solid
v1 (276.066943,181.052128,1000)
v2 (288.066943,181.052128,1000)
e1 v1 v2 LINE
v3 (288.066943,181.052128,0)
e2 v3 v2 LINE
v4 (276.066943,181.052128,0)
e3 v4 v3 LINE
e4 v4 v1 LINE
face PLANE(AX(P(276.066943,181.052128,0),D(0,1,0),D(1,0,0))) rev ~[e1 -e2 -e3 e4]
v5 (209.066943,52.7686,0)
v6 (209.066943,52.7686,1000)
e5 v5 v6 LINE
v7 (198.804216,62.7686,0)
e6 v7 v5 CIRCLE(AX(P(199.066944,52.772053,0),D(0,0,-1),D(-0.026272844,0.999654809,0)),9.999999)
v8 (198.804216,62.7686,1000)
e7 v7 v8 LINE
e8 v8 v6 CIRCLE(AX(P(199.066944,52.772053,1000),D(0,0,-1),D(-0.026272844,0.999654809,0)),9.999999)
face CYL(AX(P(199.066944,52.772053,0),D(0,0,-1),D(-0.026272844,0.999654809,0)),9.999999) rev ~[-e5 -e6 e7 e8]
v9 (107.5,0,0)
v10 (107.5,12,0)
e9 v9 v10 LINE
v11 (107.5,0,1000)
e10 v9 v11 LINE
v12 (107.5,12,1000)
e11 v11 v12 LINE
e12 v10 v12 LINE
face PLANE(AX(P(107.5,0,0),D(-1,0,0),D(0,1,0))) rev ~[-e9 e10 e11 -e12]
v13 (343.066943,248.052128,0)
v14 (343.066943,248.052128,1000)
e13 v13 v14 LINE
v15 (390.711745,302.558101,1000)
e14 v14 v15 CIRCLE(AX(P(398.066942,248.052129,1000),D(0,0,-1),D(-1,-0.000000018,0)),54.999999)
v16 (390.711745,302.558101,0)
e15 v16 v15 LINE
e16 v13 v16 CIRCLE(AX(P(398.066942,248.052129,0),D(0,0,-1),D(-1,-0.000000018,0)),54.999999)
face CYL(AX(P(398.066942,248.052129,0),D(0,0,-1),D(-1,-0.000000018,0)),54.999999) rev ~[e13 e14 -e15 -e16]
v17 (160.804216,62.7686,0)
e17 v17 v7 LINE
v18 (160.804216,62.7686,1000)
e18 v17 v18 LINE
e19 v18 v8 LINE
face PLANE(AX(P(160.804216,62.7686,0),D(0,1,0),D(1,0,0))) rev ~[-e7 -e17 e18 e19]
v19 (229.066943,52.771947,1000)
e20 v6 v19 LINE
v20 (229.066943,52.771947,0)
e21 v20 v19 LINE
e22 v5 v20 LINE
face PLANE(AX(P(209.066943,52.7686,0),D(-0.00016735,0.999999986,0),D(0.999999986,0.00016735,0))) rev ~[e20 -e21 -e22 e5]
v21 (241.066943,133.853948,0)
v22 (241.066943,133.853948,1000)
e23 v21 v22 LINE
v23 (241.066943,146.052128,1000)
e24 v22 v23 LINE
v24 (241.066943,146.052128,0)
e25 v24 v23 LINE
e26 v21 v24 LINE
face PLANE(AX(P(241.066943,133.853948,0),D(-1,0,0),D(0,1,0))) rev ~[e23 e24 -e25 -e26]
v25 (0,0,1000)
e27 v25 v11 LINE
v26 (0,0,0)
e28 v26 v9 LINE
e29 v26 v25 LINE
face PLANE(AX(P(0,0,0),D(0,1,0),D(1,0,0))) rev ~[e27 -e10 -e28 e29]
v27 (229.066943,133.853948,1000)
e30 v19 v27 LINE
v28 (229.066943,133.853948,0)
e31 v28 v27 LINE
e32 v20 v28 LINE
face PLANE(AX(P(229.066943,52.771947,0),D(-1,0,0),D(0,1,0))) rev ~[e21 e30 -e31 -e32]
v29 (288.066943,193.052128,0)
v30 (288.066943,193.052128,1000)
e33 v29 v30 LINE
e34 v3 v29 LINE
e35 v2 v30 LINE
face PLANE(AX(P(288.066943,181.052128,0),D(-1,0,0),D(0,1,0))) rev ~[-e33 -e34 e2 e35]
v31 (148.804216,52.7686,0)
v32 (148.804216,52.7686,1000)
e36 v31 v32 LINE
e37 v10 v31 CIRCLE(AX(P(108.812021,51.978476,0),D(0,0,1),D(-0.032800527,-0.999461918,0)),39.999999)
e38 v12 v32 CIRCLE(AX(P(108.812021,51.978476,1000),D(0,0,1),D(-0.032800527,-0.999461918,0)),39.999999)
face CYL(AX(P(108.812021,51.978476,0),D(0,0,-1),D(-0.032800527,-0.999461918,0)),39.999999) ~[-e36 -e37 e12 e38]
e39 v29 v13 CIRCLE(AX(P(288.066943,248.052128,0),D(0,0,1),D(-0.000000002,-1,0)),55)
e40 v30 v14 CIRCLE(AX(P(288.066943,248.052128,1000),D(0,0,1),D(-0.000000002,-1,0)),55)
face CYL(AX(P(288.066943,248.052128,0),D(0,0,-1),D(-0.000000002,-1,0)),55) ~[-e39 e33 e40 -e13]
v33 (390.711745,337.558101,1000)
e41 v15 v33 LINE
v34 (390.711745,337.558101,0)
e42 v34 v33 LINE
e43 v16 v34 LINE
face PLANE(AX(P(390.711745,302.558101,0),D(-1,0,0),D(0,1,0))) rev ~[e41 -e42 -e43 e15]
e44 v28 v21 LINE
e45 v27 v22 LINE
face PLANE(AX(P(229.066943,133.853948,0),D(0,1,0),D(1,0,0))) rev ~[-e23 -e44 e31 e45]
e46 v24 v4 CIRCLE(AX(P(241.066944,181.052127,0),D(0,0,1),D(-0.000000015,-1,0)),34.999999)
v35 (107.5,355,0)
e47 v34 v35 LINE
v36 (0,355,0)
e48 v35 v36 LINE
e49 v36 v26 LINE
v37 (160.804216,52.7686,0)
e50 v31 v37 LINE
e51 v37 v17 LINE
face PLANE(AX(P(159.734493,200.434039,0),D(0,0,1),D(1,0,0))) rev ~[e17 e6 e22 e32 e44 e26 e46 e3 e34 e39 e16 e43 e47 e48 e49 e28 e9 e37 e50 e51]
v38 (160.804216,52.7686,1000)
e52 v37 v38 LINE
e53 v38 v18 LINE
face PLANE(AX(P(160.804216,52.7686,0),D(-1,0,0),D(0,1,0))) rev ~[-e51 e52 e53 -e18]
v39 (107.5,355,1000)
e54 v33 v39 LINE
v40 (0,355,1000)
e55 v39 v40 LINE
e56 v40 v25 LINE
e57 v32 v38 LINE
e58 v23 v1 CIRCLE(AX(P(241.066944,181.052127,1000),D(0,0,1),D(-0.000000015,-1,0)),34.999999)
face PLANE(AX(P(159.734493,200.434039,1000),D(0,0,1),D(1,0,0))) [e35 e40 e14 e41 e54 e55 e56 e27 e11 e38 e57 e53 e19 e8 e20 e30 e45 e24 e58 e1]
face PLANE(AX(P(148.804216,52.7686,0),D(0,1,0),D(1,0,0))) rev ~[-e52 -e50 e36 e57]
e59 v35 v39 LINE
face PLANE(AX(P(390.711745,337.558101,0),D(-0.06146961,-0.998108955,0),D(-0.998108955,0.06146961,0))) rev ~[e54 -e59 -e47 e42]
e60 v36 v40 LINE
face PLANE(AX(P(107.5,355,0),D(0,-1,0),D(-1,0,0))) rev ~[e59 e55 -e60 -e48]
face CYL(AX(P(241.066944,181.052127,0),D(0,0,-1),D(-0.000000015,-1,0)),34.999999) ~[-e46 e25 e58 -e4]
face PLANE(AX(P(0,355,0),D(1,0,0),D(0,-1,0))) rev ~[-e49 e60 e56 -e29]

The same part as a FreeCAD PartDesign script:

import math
import FreeCAD as App
import Part
import Sketcher
Q = App.Units.Quantity

doc = App.newDocument("Part")
body = doc.addObject("PartDesign::Body", "Body")

sketch1 = doc.addObject("Sketcher::SketchObject", "Sketch")
body.addObject(sketch1)
sketch1.AttachmentSupport = (doc.XY_Plane, [""])
sketch1.MapMode = "FlatFace"
sketch1.addGeometry(Part.LineSegment(App.Vector(0, 355, 0), App.Vector(0, 0, 0)), False)
sketch1.addGeometry(Part.LineSegment(App.Vector(0, 0, 0), App.Vector(108, 0, 0)), False)
sketch1.addGeometry(Part.LineSegment(App.Vector(108, 0, 0), App.Vector(108, 12, 0)), False)
sketch1.addGeometry(Part.ArcOfCircle(Part.Circle(App.Vector(109, 52, 0), App.Vector(0, 0, 1), 40), math.radians(-92), math.radians(1)), False)
sketch1.addGeometry(Part.LineSegment(App.Vector(149, 53, 0), App.Vector(161, 53, 0)), False)
sketch1.addGeometry(Part.LineSegment(App.Vector(161, 53, 0), App.Vector(161, 63, 0)), False)
sketch1.addGeometry(Part.LineSegment(App.Vector(161, 63, 0), App.Vector(199, 63, 0)), False)
sketch1.addGeometry(Part.ArcOfCircle(Part.Circle(App.Vector(199, 53, 0), App.Vector(0, 0, 1), 10), math.radians(0), math.radians(92)), False)
sketch1.addGeometry(Part.LineSegment(App.Vector(209, 53, 0), App.Vector(229, 53, 0)), False)
sketch1.addGeometry(Part.LineSegment(App.Vector(229, 53, 0), App.Vector(229, 134, 0)), False)
sketch1.addGeometry(Part.LineSegment(App.Vector(229, 134, 0), App.Vector(241, 134, 0)), False)
sketch1.addGeometry(Part.LineSegment(App.Vector(241, 134, 0), App.Vector(241, 146, 0)), False)
sketch1.addGeometry(Part.ArcOfCircle(Part.Circle(App.Vector(241, 181, 0), App.Vector(0, 0, 1), 35), math.radians(-90), math.radians(0)), False)
sketch1.addGeometry(Part.LineSegment(App.Vector(276, 181, 0), App.Vector(288, 181, 0)), False)
sketch1.addGeometry(Part.LineSegment(App.Vector(288, 181, 0), App.Vector(288, 193, 0)), False)
sketch1.addGeometry(Part.ArcOfCircle(Part.Circle(App.Vector(288, 248, 0), App.Vector(0, 0, 1), 55), math.radians(-90), math.radians(0)), False)
sketch1.addGeometry(Part.ArcOfCircle(Part.Circle(App.Vector(398, 248, 0), App.Vector(0, 0, 1), 55), math.radians(98), math.radians(180)), False)
sketch1.addGeometry(Part.LineSegment(App.Vector(391, 303, 0), App.Vector(391, 338, 0)), False)
sketch1.addGeometry(Part.LineSegment(App.Vector(391, 338, 0), App.Vector(108, 355, 0)), False)
sketch1.addGeometry(Part.LineSegment(App.Vector(108, 355, 0), App.Vector(0, 355, 0)), False)
sketch1.addConstraint(Sketcher.Constraint("Coincident", 0, 2, 1, 1))
sketch1.addConstraint(Sketcher.Constraint("Coincident", 1, 2, 2, 1))
sketch1.addConstraint(Sketcher.Constraint("Coincident", 2, 2, 3, 1))
sketch1.addConstraint(Sketcher.Constraint("Coincident", 3, 2, 4, 1))
sketch1.addConstraint(Sketcher.Constraint("Coincident", 4, 2, 5, 1))
sketch1.addConstraint(Sketcher.Constraint("Coincident", 5, 2, 6, 1))
sketch1.addConstraint(Sketcher.Constraint("Coincident", 6, 2, 7, 2))
sketch1.addConstraint(Sketcher.Constraint("Coincident", 7, 1, 8, 1))
sketch1.addConstraint(Sketcher.Constraint("Coincident", 8, 2, 9, 1))
sketch1.addConstraint(Sketcher.Constraint("Coincident", 9, 2, 10, 1))
sketch1.addConstraint(Sketcher.Constraint("Coincident", 10, 2, 11, 1))
sketch1.addConstraint(Sketcher.Constraint("Coincident", 11, 2, 12, 1))
sketch1.addConstraint(Sketcher.Constraint("Coincident", 12, 2, 13, 1))
sketch1.addConstraint(Sketcher.Constraint("Coincident", 13, 2, 14, 1))
sketch1.addConstraint(Sketcher.Constraint("Coincident", 14, 2, 15, 1))
sketch1.addConstraint(Sketcher.Constraint("Tangent", 15, 2, 16, 2))
sketch1.addConstraint(Sketcher.Constraint("Coincident", 16, 1, 17, 1))
sketch1.addConstraint(Sketcher.Constraint("Coincident", 17, 2, 18, 1))
sketch1.addConstraint(Sketcher.Constraint("Coincident", 18, 2, 19, 1))
sketch1.addConstraint(Sketcher.Constraint("Coincident", 19, 2, 0, 1))
sketch1.addConstraint(Sketcher.Constraint("Vertical", 0))
sketch1.addConstraint(Sketcher.Constraint("Horizontal", 1))
sketch1.addConstraint(Sketcher.Constraint("Vertical", 2))
sketch1.addConstraint(Sketcher.Constraint("Horizontal", 4))
sketch1.addConstraint(Sketcher.Constraint("Vertical", 5))
sketch1.addConstraint(Sketcher.Constraint("Horizontal", 6))
sketch1.addConstraint(Sketcher.Constraint("Vertical", 9))
sketch1.addConstraint(Sketcher.Constraint("Horizontal", 10))
sketch1.addConstraint(Sketcher.Constraint("Vertical", 11))
sketch1.addConstraint(Sketcher.Constraint("Horizontal", 13))
sketch1.addConstraint(Sketcher.Constraint("Vertical", 14))
sketch1.addConstraint(Sketcher.Constraint("Vertical", 17))
sketch1.addConstraint(Sketcher.Constraint("Horizontal", 19))
sketch1.addConstraint(Sketcher.Constraint("Coincident", 0, 2, -1, 1))
sketch1.addConstraint(Sketcher.Constraint("Equal", 15, 16))
sketch1.addConstraint(Sketcher.Constraint("Horizontal", 15, 3, 16, 3))
sketch1.addConstraint(Sketcher.Constraint("Horizontal", 4, 2, 7, 1))
sketch1.addConstraint(Sketcher.Constraint("Vertical", 12, 3, 10, 2))
sketch1.addConstraint(Sketcher.Constraint("Vertical", 15, 3, 13, 2))
sketch1.addConstraint(Sketcher.Constraint("Vertical", 2, 2, 18, 2))
sketch1.addConstraint(Sketcher.Constraint("Equal", 4, 10))
sketch1.addConstraint(Sketcher.Constraint("Equal", 10, 13))
sketch1.addConstraint(Sketcher.Constraint("Equal", 13, 2))
sketch1.addConstraint(Sketcher.Constraint("Equal", 2, 14))
sketch1.addConstraint(Sketcher.Constraint("Radius", 3, Q("39.999999 mm")))
sketch1.addConstraint(Sketcher.Constraint("Radius", 7, Q("9.999999 mm")))
sketch1.addConstraint(Sketcher.Constraint("Radius", 12, Q("34.999999 mm")))
sketch1.addConstraint(Sketcher.Constraint("Radius", 15, Q("55 mm")))
sketch1.addConstraint(Sketcher.Constraint("DistanceX", 4, 1, 4, 2, Q("12 mm")))
sketch1.addConstraint(Sketcher.Constraint("DistanceX", 6, 1, 6, 2, Q("38 mm")))
sketch1.addConstraint(Sketcher.Constraint("DistanceY", 0, 2, 0, 1, Q("355 mm")))
sketch1.addConstraint(Sketcher.Constraint("DistanceY", 5, 1, 5, 2, Q("10 mm")))
sketch1.addConstraint(Sketcher.Constraint("DistanceY", 17, 1, 17, 2, Q("35 mm")))
sketch1.addConstraint(Sketcher.Constraint("Distance", 8, Q("20 mm")))
sketch1.addConstraint(Sketcher.Constraint("DistanceX", 1, 1, 1, 2, Q("107.5 mm")))
sketch1.addConstraint(Sketcher.Constraint("DistanceY", 12, 3, 15, 3, Q("67 mm")))
sketch1.addConstraint(Sketcher.Constraint("DistanceY", 9, 1, 9, 2, Q("81.082001 mm")))
sketch1.addConstraint(Sketcher.Constraint("DistanceY", 11, 1, 11, 2, Q("12.19818 mm")))
sketch1.addConstraint(Sketcher.Constraint("DistanceY", -1, 1, 3, 2, Q("52.7686 mm")))
sketch1.addConstraint(Sketcher.Constraint("DistanceY", -1, 1, 16, 1, Q("302.558101 mm")))
sketch1.addConstraint(Sketcher.Constraint("DistanceX", 15, 3, 16, 1, Q("102.644802 mm")))
sketch1.addConstraint(Sketcher.Constraint("DistanceX", -1, 1, 3, 3, Q("108.812021 mm")))
sketch1.addConstraint(Sketcher.Constraint("DistanceX", 3, 3, 16, 3, Q("289.254921 mm")))
pad1 = doc.addObject("PartDesign::Pad", "Pad")
body.addObject(pad1)
pad1.Profile = sketch1
pad1.Length = 1000

doc.recompute()
